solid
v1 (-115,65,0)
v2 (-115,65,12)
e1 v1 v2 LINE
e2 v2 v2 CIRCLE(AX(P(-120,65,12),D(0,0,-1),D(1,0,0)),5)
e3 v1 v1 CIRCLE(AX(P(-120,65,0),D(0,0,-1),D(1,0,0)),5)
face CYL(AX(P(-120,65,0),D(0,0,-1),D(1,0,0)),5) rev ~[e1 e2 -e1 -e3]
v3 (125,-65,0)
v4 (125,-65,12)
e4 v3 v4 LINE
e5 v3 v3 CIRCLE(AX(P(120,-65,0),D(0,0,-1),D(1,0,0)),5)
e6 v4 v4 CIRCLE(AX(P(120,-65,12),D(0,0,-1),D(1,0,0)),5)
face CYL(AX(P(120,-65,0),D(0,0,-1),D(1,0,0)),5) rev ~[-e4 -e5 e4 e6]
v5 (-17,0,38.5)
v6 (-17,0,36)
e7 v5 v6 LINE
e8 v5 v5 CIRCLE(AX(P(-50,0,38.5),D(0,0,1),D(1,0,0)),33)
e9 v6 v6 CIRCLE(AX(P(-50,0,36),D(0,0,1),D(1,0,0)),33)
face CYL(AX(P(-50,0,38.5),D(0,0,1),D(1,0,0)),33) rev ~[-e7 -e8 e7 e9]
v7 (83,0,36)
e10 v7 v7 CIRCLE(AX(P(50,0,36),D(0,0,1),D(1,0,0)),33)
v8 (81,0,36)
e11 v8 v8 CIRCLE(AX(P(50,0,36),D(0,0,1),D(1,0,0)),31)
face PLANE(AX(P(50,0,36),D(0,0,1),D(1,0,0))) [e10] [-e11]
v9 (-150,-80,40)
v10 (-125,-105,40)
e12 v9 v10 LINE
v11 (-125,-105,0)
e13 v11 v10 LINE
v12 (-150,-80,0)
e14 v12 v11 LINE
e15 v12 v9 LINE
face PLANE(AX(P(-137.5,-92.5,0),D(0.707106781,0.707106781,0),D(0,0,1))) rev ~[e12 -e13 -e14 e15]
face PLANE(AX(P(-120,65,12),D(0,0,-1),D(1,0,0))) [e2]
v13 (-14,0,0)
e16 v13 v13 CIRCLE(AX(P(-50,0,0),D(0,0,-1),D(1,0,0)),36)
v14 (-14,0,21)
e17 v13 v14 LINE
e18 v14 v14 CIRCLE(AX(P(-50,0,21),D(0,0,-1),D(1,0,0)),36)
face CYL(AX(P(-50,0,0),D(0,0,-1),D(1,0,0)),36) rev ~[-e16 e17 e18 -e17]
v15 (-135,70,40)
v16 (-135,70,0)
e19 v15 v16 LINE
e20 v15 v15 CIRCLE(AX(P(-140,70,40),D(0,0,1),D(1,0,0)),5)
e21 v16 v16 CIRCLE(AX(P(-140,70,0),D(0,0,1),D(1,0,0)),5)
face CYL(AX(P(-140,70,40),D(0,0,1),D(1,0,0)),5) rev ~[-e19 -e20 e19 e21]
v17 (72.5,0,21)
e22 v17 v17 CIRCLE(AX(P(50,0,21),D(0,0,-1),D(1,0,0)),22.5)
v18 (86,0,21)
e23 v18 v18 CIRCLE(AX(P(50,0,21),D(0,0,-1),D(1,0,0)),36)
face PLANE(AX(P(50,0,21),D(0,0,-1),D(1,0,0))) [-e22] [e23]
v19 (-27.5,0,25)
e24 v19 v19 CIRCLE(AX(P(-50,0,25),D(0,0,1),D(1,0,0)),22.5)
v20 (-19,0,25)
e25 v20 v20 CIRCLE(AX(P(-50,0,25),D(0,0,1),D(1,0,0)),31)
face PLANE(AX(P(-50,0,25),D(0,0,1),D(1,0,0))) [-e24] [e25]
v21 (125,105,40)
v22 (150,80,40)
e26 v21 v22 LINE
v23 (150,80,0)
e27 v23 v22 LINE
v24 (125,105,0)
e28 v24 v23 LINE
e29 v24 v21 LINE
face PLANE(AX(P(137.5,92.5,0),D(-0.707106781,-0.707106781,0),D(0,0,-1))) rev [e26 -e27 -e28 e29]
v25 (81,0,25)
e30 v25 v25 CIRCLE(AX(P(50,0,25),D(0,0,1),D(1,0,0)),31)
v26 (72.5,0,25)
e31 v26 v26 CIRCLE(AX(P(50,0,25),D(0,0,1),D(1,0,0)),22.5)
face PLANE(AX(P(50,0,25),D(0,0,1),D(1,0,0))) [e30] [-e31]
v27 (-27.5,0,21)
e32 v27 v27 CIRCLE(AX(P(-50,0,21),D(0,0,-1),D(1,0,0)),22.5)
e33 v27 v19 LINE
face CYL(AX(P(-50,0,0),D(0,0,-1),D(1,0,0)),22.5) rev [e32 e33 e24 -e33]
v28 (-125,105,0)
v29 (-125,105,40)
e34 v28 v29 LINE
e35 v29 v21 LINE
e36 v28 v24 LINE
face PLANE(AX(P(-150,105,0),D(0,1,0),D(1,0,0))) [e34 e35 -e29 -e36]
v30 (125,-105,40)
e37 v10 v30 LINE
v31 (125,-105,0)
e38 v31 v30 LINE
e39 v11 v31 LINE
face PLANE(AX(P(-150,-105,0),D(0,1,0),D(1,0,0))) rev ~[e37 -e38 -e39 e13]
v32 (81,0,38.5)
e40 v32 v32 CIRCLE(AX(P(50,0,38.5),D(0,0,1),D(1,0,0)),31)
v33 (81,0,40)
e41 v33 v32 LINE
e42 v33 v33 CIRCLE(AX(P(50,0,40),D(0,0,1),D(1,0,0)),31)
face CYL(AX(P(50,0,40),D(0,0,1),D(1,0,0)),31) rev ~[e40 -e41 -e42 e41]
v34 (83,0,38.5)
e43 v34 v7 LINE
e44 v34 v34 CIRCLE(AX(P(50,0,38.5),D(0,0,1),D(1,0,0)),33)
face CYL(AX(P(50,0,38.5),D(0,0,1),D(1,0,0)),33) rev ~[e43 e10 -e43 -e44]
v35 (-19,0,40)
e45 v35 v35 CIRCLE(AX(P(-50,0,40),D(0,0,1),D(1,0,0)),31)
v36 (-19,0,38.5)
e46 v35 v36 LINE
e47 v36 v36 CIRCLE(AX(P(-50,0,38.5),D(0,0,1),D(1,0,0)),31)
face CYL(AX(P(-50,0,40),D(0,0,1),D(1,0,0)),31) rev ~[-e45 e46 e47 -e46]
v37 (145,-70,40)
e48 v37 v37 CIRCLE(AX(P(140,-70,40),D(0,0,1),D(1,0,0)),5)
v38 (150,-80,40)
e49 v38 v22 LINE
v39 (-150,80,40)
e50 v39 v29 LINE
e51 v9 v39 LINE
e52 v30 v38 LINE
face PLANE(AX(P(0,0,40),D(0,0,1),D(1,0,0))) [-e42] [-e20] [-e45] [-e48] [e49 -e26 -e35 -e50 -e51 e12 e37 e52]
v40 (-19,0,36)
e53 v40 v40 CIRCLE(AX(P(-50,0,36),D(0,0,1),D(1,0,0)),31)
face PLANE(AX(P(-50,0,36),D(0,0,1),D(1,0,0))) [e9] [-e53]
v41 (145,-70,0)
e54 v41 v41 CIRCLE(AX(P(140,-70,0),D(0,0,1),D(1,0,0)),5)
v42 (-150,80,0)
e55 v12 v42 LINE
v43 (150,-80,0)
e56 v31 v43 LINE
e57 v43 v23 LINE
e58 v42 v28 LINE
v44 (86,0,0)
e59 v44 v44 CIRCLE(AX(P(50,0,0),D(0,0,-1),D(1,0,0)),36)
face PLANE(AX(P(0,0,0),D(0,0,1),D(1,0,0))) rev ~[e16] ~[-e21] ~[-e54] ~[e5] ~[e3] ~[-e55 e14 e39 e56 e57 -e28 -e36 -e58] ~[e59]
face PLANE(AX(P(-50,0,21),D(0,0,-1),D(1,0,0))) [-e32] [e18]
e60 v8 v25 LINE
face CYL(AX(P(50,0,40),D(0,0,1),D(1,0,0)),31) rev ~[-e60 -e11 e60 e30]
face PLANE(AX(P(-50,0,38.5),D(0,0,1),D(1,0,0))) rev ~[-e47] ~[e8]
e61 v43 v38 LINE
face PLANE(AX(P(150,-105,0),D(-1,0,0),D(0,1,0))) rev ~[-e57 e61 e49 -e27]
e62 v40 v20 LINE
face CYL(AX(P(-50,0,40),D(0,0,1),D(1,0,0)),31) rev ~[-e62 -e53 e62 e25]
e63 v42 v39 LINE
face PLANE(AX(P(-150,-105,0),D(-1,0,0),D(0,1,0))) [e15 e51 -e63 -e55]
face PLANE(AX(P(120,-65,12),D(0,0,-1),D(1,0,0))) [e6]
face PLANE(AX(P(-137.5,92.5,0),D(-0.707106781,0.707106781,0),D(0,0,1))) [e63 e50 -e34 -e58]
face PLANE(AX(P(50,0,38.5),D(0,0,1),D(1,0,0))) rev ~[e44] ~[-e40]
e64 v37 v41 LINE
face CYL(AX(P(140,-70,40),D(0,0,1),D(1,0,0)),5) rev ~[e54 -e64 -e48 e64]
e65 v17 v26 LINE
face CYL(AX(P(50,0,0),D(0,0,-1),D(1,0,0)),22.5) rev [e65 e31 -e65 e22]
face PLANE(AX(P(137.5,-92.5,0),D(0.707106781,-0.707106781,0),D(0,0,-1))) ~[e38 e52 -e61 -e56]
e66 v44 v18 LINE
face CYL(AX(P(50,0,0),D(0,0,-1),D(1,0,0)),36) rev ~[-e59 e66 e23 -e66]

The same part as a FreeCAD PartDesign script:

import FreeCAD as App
import Part
import Sketcher
from FreeCAD import Vector


def edges_at(feature, points):
    """Names of the edges that pass closest to the given points."""
    edges = feature.Shape.Edges
    near = lambda p: min(range(len(edges)), key=lambda i: edges[i].distToShape(Part.Vertex(*p))[0])
    return sorted({f"Edge{near(p) + 1}" for p in points})

doc = App.newDocument("Part")
body = doc.addObject("PartDesign::Body", "Body")

sketch1 = body.newObject("Sketcher::SketchObject", "Sketch")
sketch1.AttachmentSupport = (doc.getObject("XY_Plane"), [""])
sketch1.MapMode = "FlatFace"
sketch1.addGeometry(Part.LineSegment(Vector(-150, 105, 0), Vector(-150, -105, 0)), False)
sketch1.addGeometry(Part.LineSegment(Vector(-150, -105, 0), Vector(150, -105, 0)), False)
sketch1.addGeometry(Part.LineSegment(Vector(150, -105, 0), Vector(150, 105, 0)), False)
sketch1.addGeometry(Part.LineSegment(Vector(150, 105, 0), Vector(-150, 105, 0)), False)
sketch1.addGeometry(Part.Circle(Vector(-50, 0, 0), Vector(0, 0, 1), 22.5), False)
sketch1.addGeometry(Part.Circle(Vector(50, 0, 0), Vector(0, 0, 1), 22.5), False)
sketch1.addConstraint(Sketcher.Constraint("Coincident", 0, 2, 1, 1))
sketch1.addConstraint(Sketcher.Constraint("Coincident", 1, 2, 2, 1))
sketch1.addConstraint(Sketcher.Constraint("Coincident", 2, 2, 3, 1))
sketch1.addConstraint(Sketcher.Constraint("Coincident", 3, 2, 0, 1))
sketch1.addConstraint(Sketcher.Constraint("Vertical", 0))
sketch1.addConstraint(Sketcher.Constraint("Horizontal", 1))
sketch1.addConstraint(Sketcher.Constraint("Vertical", 2))
sketch1.addConstraint(Sketcher.Constraint("Horizontal", 3))
sketch1.addConstraint(Sketcher.Constraint("Equal", 4, 5))
sketch1.addConstraint(Sketcher.Constraint("Symmetric", 4, 3, 5, 3, -1, 1))
sketch1.addConstraint(Sketcher.Constraint("Symmetric", 0, 2, 2, 2, -1, 1))
sketch1.addConstraint(Sketcher.Constraint("PointOnObject", 4, 3, -1))
sketch1.addConstraint(Sketcher.Constraint("Diameter", 4, 45.0))
sketch1.addConstraint(Sketcher.Constraint("DistanceX", 1, 1, 1, 2, 300.0))
sketch1.addConstraint(Sketcher.Constraint("DistanceY", 0, 2, 0, 1, 210.0))
sketch1.addConstraint(Sketcher.Constraint("DistanceX", 4, 3, -1, 1, 50.0))
pad1 = body.newObject("PartDesign::Pad", "Pad")
pad1.Profile = sketch1
pad1.Length = 40

sketch2 = body.newObject("Sketcher::SketchObject", "Sketch001")
sketch2.AttachmentSupport = (doc.getObject("XY_Plane"), [""])
sketch2.MapMode = "FlatFace"
sketch2.AttachmentOffset = App.Placement(Vector(0, 0, 40), App.Rotation())
sketch2.addGeometry(Part.Circle(Vector(-50, 0, 0), Vector(0, 0, 1), 31), False)
sketch2.addGeometry(Part.Circle(Vector(-50, 0, 0), Vector(0, 0, 1), 22.5), False)
sketch2.addGeometry(Part.Circle(Vector(50, 0, 0), Vector(0, 0, 1), 31), False)
sketch2.addGeometry(Part.Circle(Vector(50, 0, 0), Vector(0, 0, 1), 22.5), False)
sketch2.addConstraint(Sketcher.Constraint("Coincident", 1, 3, 0, 3))
sketch2.addConstraint(Sketcher.Constraint("Coincident", 3, 3, 2, 3))
sketch2.addConstraint(Sketcher.Constraint("Equal", 0, 2))
sketch2.addConstraint(Sketcher.Constraint("Equal", 1, 3))
sketch2.addConstraint(Sketcher.Constraint("Symmetric", 0, 3, 2, 3, -1, 1))
sketch2.addConstraint(Sketcher.Constraint("PointOnObject", 0, 3, -1))
sketch2.addConstraint(Sketcher.Constraint("Diameter", 0, 62.0))
sketch2.addConstraint(Sketcher.Constraint("Diameter", 1, 45.0))
sketch2.addConstraint(Sketcher.Constraint("DistanceX", 0, 3, -1, 1, 50.0))
pocket1 = body.newObject("PartDesign::Pocket", "Pocket")
pocket1.Profile = sketch2
pocket1.Length = 15

sketch3 = body.newObject("Sketcher::SketchObject", "Sketch002")
sketch3.AttachmentSupport = (doc.getObject("XY_Plane"), [""])
sketch3.MapMode = "FlatFace"
sketch3.addGeometry(Part.Circle(Vector(-50, 0, 0), Vector(0, 0, 1), 36), False)
sketch3.addGeometry(Part.Circle(Vector(-50, 0, 0), Vector(0, 0, 1), 22.5), False)
sketch3.addGeometry(Part.Circle(Vector(50, 0, 0), Vector(0, 0, 1), 36), False)
sketch3.addGeometry(Part.Circle(Vector(50, 0, 0), Vector(0, 0, 1), 22.5), False)
sketch3.addConstraint(Sketcher.Constraint("Coincident", 1, 3, 0, 3))
sketch3.addConstraint(Sketcher.Constraint("Coincident", 3, 3, 2, 3))
sketch3.addConstraint(Sketcher.Constraint("Equal", 0, 2))
sketch3.addConstraint(Sketcher.Constraint("Equal", 1, 3))
sketch3.addConstraint(Sketcher.Constraint("Symmetric", 0, 3, 2, 3, -1, 1))
sketch3.addConstraint(Sketcher.Constraint("PointOnObject", 0, 3, -1))
sketch3.addConstraint(Sketcher.Constraint("Diameter", 0, 72.0))
sketch3.addConstraint(Sketcher.Constraint("Diameter", 1, 45.0))
sketch3.addConstraint(Sketcher.Constraint("DistanceX", 0, 3, -1, 1, 50.0))
pocket2 = body.newObject("PartDesign::Pocket", "Pocket001")
pocket2.Profile = sketch3
pocket2.Length = 21
pocket2.Reversed = True

sketch4 = body.newObject("Sketcher::SketchObject", "Sketch003")
sketch4.AttachmentSupport = (doc.getObject("XY_Plane"), [""])
sketch4.MapMode = "FlatFace"
sketch4.AttachmentOffset = App.Placement(Vector(0, 0, 38.5), App.Rotation())
sketch4.addGeometry(Part.Circle(Vector(-50, 0, 0), Vector(0, 0, 1), 33), False)
sketch4.addGeometry(Part.Circle(Vector(50, 0, 0), Vector(0, 0, 1), 33), False)
sketch4.addConstraint(Sketcher.Constraint("Equal", 0, 1))
sketch4.addConstraint(Sketcher.Constraint("Symmetric", 0, 3, 1, 3, -1, 1))
sketch4.addConstraint(Sketcher.Constraint("PointOnObject", 0, 3, -1))
sketch4.addConstraint(Sketcher.Constraint("Diameter", 0, 66.0))
sketch4.addConstraint(Sketcher.Constraint("DistanceX", 0, 3, -1, 1, 50.0))
pocket3 = body.newObject("PartDesign::Pocket", "Pocket002")
pocket3.Profile = sketch4
pocket3.Length = 2.5

sketch5 = body.newObject("Sketcher::SketchObject", "Sketch004")
sketch5.AttachmentSupport = (doc.getObject("XY_Plane"), [""])
sketch5.MapMode = "FlatFace"
sketch5.AttachmentOffset = App.Placement(Vector(0, 0, 40), App.Rotation())
sketch5.addGeometry(Part.Circle(Vector(-140, 70, 0), Vector(0, 0, 1), 5), False)
sketch5.addGeometry(Part.Circle(Vector(140, -70, 0), Vector(0, 0, 1), 5), False)
sketch5.addConstraint(Sketcher.Constraint("Equal", 0, 1))
sketch5.addConstraint(Sketcher.Constraint("Symmetric", 0, 3, 1, 3, -1, 1))
sketch5.addConstraint(Sketcher.Constraint("Diameter", 0, 10.0))
sketch5.addConstraint(Sketcher.Constraint("DistanceX", 0, 3, -1, 1, 140.0))
sketch5.addConstraint(Sketcher.Constraint("DistanceY", -1, 1, 0, 3, 70.0))
pocket4 = body.newObject("PartDesign::Pocket", "Pocket003")
pocket4.Profile = sketch5
pocket4.Length = 40
doc.recompute()

chamfer = body.newObject("PartDesign::Chamfer", "Chamfer")
chamfer.Base = (pocket4, edges_at(pocket4, [
    (150, -105, 20),
    (-150, -105, 20),
    (150, 105, 20),
    (-150, 105, 20),
]))
chamfer.Size = 25

sketch6 = body.newObject("Sketcher::SketchObject", "Sketch005")
sketch6.AttachmentSupport = (doc.getObject("XY_Plane"), [""])
sketch6.MapMode = "FlatFace"
sketch6.addGeometry(Part.Circle(Vector(120, -65, 0), Vector(0, 0, 1), 5), False)
sketch6.addGeometry(Part.Circle(Vector(-120, 65, 0), Vector(0, 0, 1), 5), False)
sketch6.addConstraint(Sketcher.Constraint("Equal", 0, 1))
sketch6.addConstraint(Sketcher.Constraint("Symmetric", 0, 3, 1, 3, -1, 1))
sketch6.addConstraint(Sketcher.Constraint("Diameter", 0, 10.0))
sketch6.addConstraint(Sketcher.Constraint("DistanceX", -1, 1, 0, 3, 120.0))
sketch6.addConstraint(Sketcher.Constraint("DistanceY", 0, 3, -1, 1, 65.0))
pocket5 = body.newObject("PartDesign::Pocket", "Pocket004")
pocket5.Profile = sketch6
pocket5.Length = 12
pocket5.Reversed = True

doc.recompute()
